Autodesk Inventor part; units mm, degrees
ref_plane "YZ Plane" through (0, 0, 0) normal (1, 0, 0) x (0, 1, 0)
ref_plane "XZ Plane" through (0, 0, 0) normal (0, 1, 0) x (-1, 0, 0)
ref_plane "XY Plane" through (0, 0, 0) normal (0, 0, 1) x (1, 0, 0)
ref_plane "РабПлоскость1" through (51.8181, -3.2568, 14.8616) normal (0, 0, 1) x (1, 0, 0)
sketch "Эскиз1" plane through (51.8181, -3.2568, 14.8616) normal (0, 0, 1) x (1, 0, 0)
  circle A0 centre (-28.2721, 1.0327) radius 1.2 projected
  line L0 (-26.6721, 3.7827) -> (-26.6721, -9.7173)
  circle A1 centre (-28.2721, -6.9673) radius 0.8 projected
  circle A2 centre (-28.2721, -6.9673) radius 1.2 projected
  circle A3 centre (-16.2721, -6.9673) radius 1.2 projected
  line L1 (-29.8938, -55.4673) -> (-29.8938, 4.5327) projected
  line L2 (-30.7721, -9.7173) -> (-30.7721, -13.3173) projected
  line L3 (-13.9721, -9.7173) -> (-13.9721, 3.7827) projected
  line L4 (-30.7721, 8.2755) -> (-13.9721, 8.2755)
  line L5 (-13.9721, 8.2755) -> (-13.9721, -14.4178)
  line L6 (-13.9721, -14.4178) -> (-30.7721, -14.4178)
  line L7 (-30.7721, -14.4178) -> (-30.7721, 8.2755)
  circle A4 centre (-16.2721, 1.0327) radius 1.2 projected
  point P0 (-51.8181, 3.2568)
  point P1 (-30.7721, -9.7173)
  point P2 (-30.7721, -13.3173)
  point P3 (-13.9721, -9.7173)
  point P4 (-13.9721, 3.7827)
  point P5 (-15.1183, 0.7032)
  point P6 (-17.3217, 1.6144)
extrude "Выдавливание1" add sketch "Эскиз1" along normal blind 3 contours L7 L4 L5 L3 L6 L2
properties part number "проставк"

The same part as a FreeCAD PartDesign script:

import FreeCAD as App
import Part
import Sketcher
Q = App.Units.Quantity

doc = App.newDocument("Part")
body = doc.addObject("PartDesign::Body", "Body")

sketch1 = body.newObject("Sketcher::SketchObject", "Sketch")
sketch1.AttachmentSupport = (doc.getObject("XY_Plane"), [""])
sketch1.MapMode = "FlatFace"
sketch1.AttachmentOffset = App.Placement(App.Vector(0, 0, 14.8616), App.Rotation())
sketch1.addGeometry(Part.LineSegment(App.Vector(21, 5, 0), App.Vector(21, -17.7, 0)), False)
sketch1.addGeometry(Part.LineSegment(App.Vector(21, -17.7, 0), App.Vector(37.8, -17.7, 0)), False)
sketch1.addGeometry(Part.LineSegment(App.Vector(37.8, -17.7, 0), App.Vector(37.8, 5, 0)), False)
sketch1.addGeometry(Part.LineSegment(App.Vector(37.8, 5, 0), App.Vector(21, 5, 0)), False)
sketch1.addGeometry(Part.Circle(App.Vector(23.5, -10.2, 0), App.Vector(0, 0, 1), 1.2), False)
sketch1.addGeometry(Part.Circle(App.Vector(35.5, -10.2, 0), App.Vector(0, 0, 1), 1.2), False)
sketch1.addGeometry(Part.Circle(App.Vector(23.5, -2.2, 0), App.Vector(0, 0, 1), 1.2), False)
sketch1.addGeometry(Part.Circle(App.Vector(35.5, -2.2, 0), App.Vector(0, 0, 1), 1.2), False)
sketch1.addConstraint(Sketcher.Constraint("Coincident", 0, 2, 1, 1))
sketch1.addConstraint(Sketcher.Constraint("Coincident", 1, 2, 2, 1))
sketch1.addConstraint(Sketcher.Constraint("Coincident", 2, 2, 3, 1))
sketch1.addConstraint(Sketcher.Constraint("Coincident", 3, 2, 0, 1))
sketch1.addConstraint(Sketcher.Constraint("Vertical", 0))
sketch1.addConstraint(Sketcher.Constraint("Horizontal", 1))
sketch1.addConstraint(Sketcher.Constraint("Vertical", 2))
sketch1.addConstraint(Sketcher.Constraint("Horizontal", 3))
sketch1.addConstraint(Sketcher.Constraint("Equal", 4, 5))
sketch1.addConstraint(Sketcher.Constraint("Equal", 5, 6))
sketch1.addConstraint(Sketcher.Constraint("Equal", 6, 7))
sketch1.addConstraint(Sketcher.Constraint("Horizontal", 4, 3, 5, 3))
sketch1.addConstraint(Sketcher.Constraint("Horizontal", 6, 3, 7, 3))
sketch1.addConstraint(Sketcher.Constraint("Vertical", 4, 3, 6, 3))
sketch1.addConstraint(Sketcher.Constraint("Vertical", 5, 3, 7, 3))
sketch1.addConstraint(Sketcher.Constraint("Diameter", 4, Q("2.4 mm")))
sketch1.addConstraint(Sketcher.Constraint("DistanceX", 1, 1, 1, 2, Q("16.8 mm")))
sketch1.addConstraint(Sketcher.Constraint("DistanceX", 4, 3, 5, 3, Q("12 mm")))
sketch1.addConstraint(Sketcher.Constraint("DistanceY", 4, 3, 6, 3, Q("8 mm")))
sketch1.addConstraint(Sketcher.Constraint("DistanceX", 0, 2, 4, 3, Q("2.5 mm")))
sketch1.addConstraint(Sketcher.Constraint("DistanceY", 0, 2, 0, 1, Q("22.6933 mm")))
sketch1.addConstraint(Sketcher.Constraint("DistanceX", -1, 1, 4, 3, Q("23.546 mm")))
sketch1.addConstraint(Sketcher.Constraint("DistanceY", 4, 3, -1, 1, Q("10.224 mm")))
sketch1.addConstraint(Sketcher.Constraint("DistanceY", 0, 2, -1, 1, Q("17.6746 mm")))
pad1 = body.newObject("PartDesign::Pad", "Pad")
pad1.Profile = sketch1
pad1.Length = 3

doc.recompute()
